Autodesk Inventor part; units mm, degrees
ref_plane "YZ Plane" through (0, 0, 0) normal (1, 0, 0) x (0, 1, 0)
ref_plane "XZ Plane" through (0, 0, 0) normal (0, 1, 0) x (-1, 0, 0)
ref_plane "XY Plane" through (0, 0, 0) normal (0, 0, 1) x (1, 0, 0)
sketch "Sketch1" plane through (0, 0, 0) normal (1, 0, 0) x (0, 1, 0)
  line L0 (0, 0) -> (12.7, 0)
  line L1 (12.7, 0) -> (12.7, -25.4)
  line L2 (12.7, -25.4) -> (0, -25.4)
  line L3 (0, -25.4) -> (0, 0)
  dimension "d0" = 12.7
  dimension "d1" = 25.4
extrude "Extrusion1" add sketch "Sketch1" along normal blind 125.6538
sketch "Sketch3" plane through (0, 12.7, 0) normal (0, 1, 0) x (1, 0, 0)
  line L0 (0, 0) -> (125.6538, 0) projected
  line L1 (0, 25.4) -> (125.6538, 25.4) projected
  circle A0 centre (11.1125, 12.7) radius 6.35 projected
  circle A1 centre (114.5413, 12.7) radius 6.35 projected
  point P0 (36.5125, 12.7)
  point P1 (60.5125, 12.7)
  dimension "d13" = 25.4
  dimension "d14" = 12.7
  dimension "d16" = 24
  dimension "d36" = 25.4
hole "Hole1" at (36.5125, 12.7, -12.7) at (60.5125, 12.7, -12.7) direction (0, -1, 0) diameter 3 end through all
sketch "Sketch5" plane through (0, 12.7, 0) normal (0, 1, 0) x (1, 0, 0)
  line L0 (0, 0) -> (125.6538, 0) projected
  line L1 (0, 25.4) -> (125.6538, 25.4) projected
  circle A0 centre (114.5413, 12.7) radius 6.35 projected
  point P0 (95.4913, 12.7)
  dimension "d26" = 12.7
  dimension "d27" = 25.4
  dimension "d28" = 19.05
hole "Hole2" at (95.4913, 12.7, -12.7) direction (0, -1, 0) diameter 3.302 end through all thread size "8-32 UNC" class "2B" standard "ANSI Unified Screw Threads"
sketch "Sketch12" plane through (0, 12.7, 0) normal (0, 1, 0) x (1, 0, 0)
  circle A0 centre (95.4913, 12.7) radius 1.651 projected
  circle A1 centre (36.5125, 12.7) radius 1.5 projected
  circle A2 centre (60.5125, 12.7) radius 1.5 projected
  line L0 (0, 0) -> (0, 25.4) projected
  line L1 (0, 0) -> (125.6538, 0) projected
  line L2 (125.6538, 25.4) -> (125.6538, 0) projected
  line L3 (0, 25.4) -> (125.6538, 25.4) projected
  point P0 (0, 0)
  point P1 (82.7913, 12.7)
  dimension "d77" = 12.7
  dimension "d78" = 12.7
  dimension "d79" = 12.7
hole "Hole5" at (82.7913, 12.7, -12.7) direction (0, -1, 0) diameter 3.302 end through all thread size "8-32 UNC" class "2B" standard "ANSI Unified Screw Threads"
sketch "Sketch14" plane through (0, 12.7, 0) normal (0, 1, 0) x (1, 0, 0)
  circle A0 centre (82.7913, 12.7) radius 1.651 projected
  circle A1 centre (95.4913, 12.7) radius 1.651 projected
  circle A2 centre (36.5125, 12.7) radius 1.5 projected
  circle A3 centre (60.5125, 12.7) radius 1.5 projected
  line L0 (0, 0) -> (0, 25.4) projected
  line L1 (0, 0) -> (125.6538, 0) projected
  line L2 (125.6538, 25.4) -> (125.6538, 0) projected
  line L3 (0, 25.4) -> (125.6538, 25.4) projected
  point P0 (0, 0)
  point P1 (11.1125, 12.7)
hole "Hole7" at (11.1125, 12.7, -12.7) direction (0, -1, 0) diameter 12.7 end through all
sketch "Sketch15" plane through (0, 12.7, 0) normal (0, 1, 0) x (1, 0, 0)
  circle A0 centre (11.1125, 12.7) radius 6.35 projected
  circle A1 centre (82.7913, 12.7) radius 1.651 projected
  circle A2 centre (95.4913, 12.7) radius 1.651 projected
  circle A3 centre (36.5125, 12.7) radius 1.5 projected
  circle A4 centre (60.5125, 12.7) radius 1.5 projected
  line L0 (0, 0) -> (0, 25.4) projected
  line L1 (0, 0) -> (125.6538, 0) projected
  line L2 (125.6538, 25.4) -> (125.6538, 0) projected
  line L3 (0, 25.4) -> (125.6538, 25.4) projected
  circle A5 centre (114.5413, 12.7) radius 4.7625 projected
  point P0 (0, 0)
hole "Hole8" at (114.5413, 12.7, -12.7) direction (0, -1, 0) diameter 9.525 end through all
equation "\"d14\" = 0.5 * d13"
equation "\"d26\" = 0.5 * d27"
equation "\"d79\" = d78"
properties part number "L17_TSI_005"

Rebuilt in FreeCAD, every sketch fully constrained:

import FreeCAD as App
import Part
import Sketcher
Q = App.Units.Quantity


def add_polygon(sketch, points):
    """Adds a closed chain of lines whose ends are joined by coincident constraints."""
    first, n = sketch.GeometryCount, len(points)
    for a, b in zip(points, points[1:] + points[:1]):
        sketch.addGeometry(Part.LineSegment(App.Vector(*a, 0), App.Vector(*b, 0)), False)
    for i in range(n):
        sketch.addConstraint(Sketcher.Constraint("Coincident", first + i, 2, first + (i + 1) % n, 1))

doc = App.newDocument("Part")
body = doc.addObject("PartDesign::Body", "Body")

# Sketch on YZ plane
sketch1 = body.newObject("Sketcher::SketchObject", "Sketch")
sketch1.AttachmentSupport = (doc.getObject("YZ_Plane"), [""])
sketch1.MapMode = "FlatFace"
add_polygon(sketch1, [(13, 0), (0, 0), (0, -25), (13, -25)])  # lines 0-3
sketch1.addConstraint([
    Sketcher.Constraint("Horizontal", 0),
    Sketcher.Constraint("Vertical", 1),
    Sketcher.Constraint("Horizontal", 2),
    Sketcher.Constraint("Vertical", 3),
    Sketcher.Constraint("Coincident", 0, 2, -1, 1),
    Sketcher.Constraint("DistanceY", 1, 2, 1, 1, Q("1 in")),
    Sketcher.Constraint("DistanceX", 0, 2, 0, 1, Q("0.5 in")),
])
pad1 = body.newObject("PartDesign::Pad", "Pad")
pad1.Profile = sketch1
pad1.Length = Q("4.947 in")

# Sketch on XZ plane
sketch2 = body.newObject("Sketcher::SketchObject", "Sketch001")
sketch2.AttachmentSupport = (doc.getObject("XZ_Plane"), [""])
sketch2.MapMode = "FlatFace"
sketch2.AttachmentOffset = App.Placement(App.Vector(0, 0, -0.5 * 25.4), App.Rotation())
sketch2.addGeometry([
    Part.Circle(App.Vector(36.5, -12.7, 0), App.Vector(0, 0, 1), 1.5),
    Part.Circle(App.Vector(60.5, -12.7, 0), App.Vector(0, 0, 1), 1.5),
], False)
sketch2.addConstraint([
    Sketcher.Constraint("Equal", 0, 1),
    Sketcher.Constraint("Horizontal", 0, 3, 1, 3),
    Sketcher.Constraint("Diameter", 0, Q("0.1181 in")),
    Sketcher.Constraint("DistanceY", 0, 3, -1, 1, Q("0.5 in")),
    Sketcher.Constraint("DistanceX", -1, 1, 0, 3, Q("1.4375 in")),
    Sketcher.Constraint("DistanceX", -1, 1, 1, 3, 60.5125),
])
doc.recompute()
hole = body.newObject("PartDesign::Hole", "Hole")
hole.Profile = sketch2
hole.ThreadType = "None"
hole.Diameter = Q("0.1181102 in")
hole.DepthType = "ThroughAll"
hole.Reversed = True

# Sketch on XZ plane
sketch3 = body.newObject("Sketcher::SketchObject", "Sketch002")
sketch3.AttachmentSupport = (doc.getObject("XZ_Plane"), [""])
sketch3.MapMode = "FlatFace"
sketch3.AttachmentOffset = App.Placement(App.Vector(0, 0, -0.5 * 25.4), App.Rotation())
sketch3.addGeometry(Part.Circle(App.Vector(95.5, -12.7, 0), App.Vector(0, 0, 1), 1.7), False)
sketch3.addConstraint([
    Sketcher.Constraint("Diameter", 0, Q("0.13 in")),
    Sketcher.Constraint("DistanceY", 0, 3, -1, 1, Q("0.5 in")),
    Sketcher.Constraint("DistanceX", -1, 1, 0, 3, Q("3.7595 in")),
])
doc.recompute()
hole2 = body.newObject("PartDesign::Hole", "Hole001")
hole2.Profile = sketch3
hole2.ThreadType = "None"
hole2.Diameter = Q("0.13 in")
hole2.DepthType = "ThroughAll"
hole2.Reversed = True

# Sketch on XZ plane
sketch4 = body.newObject("Sketcher::SketchObject", "Sketch003")
sketch4.AttachmentSupport = (doc.getObject("XZ_Plane"), [""])
sketch4.MapMode = "FlatFace"
sketch4.AttachmentOffset = App.Placement(App.Vector(0, 0, -0.5 * 25.4), App.Rotation())
sketch4.addGeometry(Part.Circle(App.Vector(82.8, -12.7, 0), App.Vector(0, 0, 1), 1.7), False)
sketch4.addConstraint([
    Sketcher.Constraint("Diameter", 0, Q("0.13 in")),
    Sketcher.Constraint("DistanceY", 0, 3, -1, 1, Q("0.5 in")),
    Sketcher.Constraint("DistanceX", -1, 1, 0, 3, Q("3.2595 in")),
])
doc.recompute()
hole3 = body.newObject("PartDesign::Hole", "Hole002")
hole3.Profile = sketch4
hole3.ThreadType = "None"
hole3.Diameter = Q("0.13 in")
hole3.DepthType = "ThroughAll"
hole3.Reversed = True

# Sketch on XZ plane
sketch5 = body.newObject("Sketcher::SketchObject", "Sketch004")
sketch5.AttachmentSupport = (doc.getObject("XZ_Plane"), [""])
sketch5.MapMode = "FlatFace"
sketch5.AttachmentOffset = App.Placement(App.Vector(0, 0, -0.5 * 25.4), App.Rotation())
sketch5.addGeometry(Part.Circle(App.Vector(11, -13, 0), App.Vector(0, 0, 1), 6), False)
sketch5.addConstraint([
    Sketcher.Constraint("Diameter", 0, Q("0.5 in")),
    Sketcher.Constraint("DistanceY", 0, 3, -1, 1, Q("0.5 in")),
    Sketcher.Constraint("DistanceX", -1, 1, 0, 3, Q("0.4375 in")),
])
doc.recompute()
hole4 = body.newObject("PartDesign::Hole", "Hole003")
hole4.Profile = sketch5
hole4.ThreadType = "None"
hole4.Diameter = Q("0.5 in")
hole4.DepthType = "ThroughAll"
hole4.Reversed = True

# Sketch on XZ plane
sketch6 = body.newObject("Sketcher::SketchObject", "Sketch005")
sketch6.AttachmentSupport = (doc.getObject("XZ_Plane"), [""])
sketch6.MapMode = "FlatFace"
sketch6.AttachmentOffset = App.Placement(App.Vector(0, 0, -0.5 * 25.4), App.Rotation())
sketch6.addGeometry(Part.Circle(App.Vector(114.5, -12.7, 0), App.Vector(0, 0, 1), 4.8), False)
sketch6.addConstraint([
    Sketcher.Constraint("Diameter", 0, Q("0.375 in")),
    Sketcher.Constraint("DistanceY", 0, 3, -1, 1, Q("0.5 in")),
    Sketcher.Constraint("DistanceX", -1, 1, 0, 3, Q("4.5095 in")),
])
doc.recompute()
hole5 = body.newObject("PartDesign::Hole", "Hole004")
hole5.Profile = sketch6
hole5.ThreadType = "None"
hole5.Diameter = Q("0.375 in")
hole5.DepthType = "ThroughAll"
hole5.Reversed = True

doc.recompute()
